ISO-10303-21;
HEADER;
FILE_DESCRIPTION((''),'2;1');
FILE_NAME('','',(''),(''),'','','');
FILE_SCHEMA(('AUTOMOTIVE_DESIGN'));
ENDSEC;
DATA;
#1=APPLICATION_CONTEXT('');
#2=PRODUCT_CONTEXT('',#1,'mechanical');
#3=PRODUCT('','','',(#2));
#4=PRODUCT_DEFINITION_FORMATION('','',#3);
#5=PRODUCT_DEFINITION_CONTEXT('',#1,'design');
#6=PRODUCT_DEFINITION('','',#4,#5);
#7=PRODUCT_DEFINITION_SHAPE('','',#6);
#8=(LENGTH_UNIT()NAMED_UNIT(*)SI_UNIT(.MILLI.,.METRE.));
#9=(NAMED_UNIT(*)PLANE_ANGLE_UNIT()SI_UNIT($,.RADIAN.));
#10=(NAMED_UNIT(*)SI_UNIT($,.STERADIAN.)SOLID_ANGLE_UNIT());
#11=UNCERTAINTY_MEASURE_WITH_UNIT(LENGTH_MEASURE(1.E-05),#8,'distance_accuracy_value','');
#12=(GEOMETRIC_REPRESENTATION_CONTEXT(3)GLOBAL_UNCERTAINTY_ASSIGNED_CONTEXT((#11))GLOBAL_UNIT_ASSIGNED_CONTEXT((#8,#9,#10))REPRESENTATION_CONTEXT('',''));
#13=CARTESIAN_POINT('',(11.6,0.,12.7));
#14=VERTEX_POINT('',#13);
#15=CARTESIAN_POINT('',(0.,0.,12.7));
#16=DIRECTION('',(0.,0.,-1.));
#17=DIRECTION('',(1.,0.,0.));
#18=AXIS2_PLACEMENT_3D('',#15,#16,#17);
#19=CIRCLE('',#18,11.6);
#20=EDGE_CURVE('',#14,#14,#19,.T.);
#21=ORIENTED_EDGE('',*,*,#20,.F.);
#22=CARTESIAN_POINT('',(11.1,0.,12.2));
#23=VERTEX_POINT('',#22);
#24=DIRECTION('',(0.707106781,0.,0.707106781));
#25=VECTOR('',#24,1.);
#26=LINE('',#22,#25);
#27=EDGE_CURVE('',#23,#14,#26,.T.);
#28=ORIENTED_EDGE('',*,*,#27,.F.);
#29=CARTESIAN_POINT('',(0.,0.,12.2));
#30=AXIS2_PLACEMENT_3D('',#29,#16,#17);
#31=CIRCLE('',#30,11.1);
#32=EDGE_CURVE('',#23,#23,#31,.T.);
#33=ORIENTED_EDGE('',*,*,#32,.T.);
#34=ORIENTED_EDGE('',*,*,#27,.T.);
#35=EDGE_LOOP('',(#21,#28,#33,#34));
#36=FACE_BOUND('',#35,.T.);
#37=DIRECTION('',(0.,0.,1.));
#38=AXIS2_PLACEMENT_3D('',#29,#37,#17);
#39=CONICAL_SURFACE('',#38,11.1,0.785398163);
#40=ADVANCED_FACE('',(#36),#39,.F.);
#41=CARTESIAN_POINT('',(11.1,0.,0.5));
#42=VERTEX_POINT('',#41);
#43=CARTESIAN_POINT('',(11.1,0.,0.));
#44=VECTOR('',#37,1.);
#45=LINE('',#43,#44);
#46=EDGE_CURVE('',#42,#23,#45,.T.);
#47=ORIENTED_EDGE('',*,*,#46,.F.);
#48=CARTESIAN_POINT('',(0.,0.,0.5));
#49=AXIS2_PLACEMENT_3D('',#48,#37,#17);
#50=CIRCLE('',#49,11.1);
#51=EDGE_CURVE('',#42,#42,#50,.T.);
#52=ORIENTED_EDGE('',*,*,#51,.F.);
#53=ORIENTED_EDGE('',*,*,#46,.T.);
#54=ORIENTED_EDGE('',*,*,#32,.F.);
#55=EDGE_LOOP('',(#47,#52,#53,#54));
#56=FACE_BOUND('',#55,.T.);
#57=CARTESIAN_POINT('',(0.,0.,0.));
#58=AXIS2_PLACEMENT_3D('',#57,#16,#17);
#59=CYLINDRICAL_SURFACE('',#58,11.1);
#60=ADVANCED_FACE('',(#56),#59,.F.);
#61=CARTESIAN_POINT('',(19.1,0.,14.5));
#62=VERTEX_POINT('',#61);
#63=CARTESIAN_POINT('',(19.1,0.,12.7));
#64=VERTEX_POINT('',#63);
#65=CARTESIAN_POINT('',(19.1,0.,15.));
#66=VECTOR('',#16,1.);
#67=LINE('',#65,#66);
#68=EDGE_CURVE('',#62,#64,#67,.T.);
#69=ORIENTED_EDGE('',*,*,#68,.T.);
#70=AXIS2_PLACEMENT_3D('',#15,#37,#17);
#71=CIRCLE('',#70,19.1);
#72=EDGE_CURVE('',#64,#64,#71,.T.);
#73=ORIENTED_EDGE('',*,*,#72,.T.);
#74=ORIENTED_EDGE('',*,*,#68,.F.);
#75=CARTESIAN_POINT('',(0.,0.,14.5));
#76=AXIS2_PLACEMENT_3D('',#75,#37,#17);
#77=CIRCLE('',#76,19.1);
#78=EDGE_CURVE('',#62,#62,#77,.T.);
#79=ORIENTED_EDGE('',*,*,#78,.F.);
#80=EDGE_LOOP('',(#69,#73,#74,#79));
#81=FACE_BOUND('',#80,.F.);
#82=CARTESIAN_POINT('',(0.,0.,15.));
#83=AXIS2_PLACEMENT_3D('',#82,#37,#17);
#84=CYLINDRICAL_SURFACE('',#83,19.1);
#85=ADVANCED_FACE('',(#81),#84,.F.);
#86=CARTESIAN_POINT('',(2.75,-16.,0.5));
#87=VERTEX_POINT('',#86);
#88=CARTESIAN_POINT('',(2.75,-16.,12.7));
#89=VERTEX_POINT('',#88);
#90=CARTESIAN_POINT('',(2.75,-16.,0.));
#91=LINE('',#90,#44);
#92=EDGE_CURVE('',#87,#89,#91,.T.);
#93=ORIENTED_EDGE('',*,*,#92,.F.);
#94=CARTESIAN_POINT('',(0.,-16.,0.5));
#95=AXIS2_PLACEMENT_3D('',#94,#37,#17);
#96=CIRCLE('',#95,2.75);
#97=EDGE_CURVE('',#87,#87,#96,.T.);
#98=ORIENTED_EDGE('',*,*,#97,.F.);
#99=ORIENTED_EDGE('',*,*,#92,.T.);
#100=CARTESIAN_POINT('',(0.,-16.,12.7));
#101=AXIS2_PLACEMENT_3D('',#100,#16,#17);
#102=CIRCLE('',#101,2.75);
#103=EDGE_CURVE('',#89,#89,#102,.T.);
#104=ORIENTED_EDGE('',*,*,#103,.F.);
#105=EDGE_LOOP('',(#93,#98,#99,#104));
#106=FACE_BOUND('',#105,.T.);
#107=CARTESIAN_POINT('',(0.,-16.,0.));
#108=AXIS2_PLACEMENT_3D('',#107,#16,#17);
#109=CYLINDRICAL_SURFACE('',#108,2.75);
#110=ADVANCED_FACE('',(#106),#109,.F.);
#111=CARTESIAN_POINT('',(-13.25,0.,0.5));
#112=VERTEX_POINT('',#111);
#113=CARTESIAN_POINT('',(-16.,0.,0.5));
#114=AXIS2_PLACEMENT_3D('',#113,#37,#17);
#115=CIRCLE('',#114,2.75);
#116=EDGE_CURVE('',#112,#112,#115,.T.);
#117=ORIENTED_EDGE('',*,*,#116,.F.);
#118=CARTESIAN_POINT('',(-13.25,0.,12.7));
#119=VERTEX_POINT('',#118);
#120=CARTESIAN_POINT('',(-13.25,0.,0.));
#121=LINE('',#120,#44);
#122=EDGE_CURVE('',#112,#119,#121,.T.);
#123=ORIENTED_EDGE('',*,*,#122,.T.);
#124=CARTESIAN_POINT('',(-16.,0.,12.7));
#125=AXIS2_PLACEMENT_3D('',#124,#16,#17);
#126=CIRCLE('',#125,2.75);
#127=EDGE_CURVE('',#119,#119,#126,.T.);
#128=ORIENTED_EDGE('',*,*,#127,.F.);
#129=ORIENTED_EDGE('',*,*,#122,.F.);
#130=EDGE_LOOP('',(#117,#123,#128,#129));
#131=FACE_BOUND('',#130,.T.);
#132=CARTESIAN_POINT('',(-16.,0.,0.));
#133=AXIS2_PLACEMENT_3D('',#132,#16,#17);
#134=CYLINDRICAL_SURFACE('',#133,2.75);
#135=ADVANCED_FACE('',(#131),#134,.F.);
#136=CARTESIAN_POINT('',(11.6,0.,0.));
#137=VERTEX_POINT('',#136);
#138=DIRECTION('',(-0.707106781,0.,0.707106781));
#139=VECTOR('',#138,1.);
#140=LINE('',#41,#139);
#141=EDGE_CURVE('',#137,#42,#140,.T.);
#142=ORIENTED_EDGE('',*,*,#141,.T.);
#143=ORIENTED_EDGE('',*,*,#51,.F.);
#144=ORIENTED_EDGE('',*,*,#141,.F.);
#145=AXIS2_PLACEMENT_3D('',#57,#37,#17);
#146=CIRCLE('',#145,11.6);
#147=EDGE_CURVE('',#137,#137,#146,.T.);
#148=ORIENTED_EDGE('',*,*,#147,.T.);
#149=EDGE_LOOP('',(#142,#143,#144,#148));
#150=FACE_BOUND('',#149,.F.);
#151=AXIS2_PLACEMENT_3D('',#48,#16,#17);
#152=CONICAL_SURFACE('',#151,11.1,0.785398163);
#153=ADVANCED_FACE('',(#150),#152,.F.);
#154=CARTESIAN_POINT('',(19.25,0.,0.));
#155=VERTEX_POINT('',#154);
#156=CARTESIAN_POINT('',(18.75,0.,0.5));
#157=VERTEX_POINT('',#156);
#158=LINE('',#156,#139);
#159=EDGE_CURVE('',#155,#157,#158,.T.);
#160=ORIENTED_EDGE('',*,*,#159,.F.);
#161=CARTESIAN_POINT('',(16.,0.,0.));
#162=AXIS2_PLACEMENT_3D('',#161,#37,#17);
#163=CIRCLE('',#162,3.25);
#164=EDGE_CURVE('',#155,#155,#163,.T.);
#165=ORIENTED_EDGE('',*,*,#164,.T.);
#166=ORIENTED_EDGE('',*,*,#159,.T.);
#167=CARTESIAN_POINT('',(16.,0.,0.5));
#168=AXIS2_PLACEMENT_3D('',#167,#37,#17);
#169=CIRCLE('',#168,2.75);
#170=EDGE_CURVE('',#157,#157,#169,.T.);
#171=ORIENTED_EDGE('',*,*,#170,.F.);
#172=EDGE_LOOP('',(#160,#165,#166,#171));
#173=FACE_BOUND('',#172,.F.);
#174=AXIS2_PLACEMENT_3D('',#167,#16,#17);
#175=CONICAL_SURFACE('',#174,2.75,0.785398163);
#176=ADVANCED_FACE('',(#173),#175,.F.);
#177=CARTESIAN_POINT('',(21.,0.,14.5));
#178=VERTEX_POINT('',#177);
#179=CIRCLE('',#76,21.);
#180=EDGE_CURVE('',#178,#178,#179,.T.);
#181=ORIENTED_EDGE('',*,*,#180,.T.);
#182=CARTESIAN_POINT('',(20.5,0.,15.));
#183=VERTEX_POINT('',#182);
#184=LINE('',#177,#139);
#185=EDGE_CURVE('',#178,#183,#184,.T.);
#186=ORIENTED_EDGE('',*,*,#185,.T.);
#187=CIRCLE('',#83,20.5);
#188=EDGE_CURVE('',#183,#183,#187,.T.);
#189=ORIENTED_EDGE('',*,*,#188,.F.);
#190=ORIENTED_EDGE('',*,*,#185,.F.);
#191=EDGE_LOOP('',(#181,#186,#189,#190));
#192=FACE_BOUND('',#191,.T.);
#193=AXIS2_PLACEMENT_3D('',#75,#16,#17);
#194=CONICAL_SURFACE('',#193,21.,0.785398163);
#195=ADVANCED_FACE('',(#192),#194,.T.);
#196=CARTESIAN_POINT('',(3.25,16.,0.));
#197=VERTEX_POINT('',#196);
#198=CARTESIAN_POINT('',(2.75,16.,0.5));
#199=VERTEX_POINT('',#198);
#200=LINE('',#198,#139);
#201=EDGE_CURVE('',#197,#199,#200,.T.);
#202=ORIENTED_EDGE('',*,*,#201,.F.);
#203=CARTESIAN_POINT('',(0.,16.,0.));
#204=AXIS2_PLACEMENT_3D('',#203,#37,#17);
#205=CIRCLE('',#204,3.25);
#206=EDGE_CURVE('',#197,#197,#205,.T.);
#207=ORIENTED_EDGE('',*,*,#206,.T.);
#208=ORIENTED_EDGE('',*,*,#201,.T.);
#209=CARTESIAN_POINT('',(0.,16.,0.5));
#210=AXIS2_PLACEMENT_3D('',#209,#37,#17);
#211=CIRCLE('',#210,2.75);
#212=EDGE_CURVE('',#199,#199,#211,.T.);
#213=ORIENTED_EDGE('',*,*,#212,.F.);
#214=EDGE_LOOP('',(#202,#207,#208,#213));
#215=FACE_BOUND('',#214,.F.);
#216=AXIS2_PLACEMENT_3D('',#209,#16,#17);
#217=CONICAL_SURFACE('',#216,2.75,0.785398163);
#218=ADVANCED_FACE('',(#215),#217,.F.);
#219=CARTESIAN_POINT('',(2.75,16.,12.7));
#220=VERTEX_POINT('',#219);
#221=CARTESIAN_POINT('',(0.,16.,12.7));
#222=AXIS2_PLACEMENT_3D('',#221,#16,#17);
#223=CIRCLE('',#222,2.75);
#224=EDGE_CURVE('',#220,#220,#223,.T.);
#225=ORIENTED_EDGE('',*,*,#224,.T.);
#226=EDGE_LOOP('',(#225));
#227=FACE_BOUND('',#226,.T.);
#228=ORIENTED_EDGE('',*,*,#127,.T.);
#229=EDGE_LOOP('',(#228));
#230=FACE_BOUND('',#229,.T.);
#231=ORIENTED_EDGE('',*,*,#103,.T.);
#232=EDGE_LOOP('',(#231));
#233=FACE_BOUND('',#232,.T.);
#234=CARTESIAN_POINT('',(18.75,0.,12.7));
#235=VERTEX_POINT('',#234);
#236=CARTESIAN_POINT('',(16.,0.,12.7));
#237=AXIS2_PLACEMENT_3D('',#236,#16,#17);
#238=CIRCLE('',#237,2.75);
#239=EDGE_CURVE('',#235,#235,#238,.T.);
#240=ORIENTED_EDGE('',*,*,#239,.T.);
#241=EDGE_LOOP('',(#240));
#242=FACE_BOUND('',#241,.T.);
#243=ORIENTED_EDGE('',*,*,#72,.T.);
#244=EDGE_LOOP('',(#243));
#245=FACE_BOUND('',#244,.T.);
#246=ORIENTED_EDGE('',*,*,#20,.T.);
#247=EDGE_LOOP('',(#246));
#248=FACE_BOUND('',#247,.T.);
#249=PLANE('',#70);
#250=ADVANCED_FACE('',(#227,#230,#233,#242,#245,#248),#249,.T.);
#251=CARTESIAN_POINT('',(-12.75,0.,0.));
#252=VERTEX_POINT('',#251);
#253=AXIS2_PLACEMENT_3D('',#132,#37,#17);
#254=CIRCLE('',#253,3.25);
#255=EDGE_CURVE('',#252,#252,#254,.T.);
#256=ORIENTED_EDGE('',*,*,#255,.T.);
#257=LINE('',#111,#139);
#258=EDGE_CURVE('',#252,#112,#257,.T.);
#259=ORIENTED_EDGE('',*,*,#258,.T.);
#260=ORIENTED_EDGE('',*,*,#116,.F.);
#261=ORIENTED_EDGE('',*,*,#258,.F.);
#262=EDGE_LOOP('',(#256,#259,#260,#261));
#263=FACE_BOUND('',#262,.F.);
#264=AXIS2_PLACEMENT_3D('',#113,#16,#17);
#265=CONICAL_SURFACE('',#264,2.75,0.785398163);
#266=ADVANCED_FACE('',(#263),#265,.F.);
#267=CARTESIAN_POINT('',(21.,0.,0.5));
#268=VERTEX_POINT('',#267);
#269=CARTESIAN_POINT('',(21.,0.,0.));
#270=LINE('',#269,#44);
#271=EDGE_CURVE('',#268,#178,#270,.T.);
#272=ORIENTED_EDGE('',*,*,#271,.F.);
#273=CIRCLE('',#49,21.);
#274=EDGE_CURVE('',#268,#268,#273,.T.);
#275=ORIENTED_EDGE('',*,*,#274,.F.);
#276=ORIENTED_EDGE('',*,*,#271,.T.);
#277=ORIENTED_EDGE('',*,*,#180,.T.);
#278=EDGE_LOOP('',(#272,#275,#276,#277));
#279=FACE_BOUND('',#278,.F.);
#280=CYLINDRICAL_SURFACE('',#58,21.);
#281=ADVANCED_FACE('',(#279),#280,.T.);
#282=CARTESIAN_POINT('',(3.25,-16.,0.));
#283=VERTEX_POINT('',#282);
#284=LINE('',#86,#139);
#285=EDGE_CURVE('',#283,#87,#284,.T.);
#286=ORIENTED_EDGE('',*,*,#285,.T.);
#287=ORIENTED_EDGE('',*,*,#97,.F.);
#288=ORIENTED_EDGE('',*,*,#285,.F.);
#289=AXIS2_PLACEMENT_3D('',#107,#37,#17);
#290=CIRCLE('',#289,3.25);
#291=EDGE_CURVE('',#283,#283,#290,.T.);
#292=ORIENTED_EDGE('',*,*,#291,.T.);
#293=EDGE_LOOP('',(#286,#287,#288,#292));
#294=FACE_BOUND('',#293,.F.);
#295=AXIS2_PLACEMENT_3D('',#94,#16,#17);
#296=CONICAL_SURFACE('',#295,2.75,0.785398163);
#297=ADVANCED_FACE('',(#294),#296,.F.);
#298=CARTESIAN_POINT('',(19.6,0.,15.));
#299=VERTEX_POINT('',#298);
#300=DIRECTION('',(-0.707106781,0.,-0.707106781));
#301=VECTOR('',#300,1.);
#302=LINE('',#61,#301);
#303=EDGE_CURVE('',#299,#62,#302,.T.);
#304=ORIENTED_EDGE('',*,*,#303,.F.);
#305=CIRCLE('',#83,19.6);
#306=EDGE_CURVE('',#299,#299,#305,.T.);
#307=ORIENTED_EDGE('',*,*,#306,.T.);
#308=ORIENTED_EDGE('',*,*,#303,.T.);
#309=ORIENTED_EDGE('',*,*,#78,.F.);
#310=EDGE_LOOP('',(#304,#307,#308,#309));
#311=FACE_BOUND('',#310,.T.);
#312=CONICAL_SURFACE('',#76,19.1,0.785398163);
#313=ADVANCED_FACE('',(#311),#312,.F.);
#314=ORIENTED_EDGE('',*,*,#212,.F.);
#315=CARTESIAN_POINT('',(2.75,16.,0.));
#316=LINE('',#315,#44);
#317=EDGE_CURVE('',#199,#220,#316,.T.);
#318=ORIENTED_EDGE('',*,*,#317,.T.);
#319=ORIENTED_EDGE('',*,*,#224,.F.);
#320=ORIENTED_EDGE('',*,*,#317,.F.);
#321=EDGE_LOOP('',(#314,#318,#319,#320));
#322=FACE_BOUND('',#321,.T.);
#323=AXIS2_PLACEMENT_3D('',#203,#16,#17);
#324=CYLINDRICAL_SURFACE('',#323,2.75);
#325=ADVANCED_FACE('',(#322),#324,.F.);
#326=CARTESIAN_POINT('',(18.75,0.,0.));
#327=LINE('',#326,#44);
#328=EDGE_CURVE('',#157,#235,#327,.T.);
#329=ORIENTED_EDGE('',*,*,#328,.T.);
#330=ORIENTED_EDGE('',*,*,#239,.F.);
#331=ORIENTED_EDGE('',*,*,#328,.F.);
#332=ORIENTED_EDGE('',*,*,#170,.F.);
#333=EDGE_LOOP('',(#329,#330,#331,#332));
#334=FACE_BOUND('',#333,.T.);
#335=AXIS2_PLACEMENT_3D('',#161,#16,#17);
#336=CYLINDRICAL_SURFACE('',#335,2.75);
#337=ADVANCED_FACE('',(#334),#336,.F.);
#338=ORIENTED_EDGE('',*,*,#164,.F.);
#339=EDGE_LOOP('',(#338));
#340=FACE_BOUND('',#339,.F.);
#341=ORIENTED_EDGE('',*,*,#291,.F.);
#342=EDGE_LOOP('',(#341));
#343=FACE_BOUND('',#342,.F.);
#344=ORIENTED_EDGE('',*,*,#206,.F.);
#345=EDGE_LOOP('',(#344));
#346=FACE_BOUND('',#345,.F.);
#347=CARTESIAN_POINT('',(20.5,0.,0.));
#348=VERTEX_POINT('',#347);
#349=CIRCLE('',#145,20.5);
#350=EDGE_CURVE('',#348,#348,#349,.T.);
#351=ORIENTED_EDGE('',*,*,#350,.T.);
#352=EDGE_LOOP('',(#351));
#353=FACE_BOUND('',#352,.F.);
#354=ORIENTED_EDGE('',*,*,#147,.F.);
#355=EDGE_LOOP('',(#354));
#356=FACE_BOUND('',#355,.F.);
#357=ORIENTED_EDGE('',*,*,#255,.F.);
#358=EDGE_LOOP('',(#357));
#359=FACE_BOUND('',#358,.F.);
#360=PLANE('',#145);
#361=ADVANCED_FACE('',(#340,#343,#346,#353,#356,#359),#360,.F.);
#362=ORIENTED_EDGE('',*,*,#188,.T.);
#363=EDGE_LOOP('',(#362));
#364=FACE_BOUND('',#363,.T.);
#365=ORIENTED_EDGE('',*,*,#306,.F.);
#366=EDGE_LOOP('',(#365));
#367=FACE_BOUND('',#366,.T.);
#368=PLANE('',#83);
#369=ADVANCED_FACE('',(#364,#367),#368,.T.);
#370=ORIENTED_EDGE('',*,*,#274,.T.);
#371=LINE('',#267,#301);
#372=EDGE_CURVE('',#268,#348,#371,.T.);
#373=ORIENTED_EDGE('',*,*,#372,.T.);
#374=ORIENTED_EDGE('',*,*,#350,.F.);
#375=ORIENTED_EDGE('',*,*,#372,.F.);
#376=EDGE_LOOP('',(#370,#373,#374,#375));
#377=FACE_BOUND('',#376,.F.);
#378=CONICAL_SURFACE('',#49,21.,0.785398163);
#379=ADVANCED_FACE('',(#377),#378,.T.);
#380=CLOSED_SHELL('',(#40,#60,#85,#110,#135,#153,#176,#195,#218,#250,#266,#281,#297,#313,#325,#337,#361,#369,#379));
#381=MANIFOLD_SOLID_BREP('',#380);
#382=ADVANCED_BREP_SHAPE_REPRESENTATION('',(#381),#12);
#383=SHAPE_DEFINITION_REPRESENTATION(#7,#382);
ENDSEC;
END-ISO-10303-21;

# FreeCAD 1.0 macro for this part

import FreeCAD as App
import Part
import Sketcher
from FreeCAD import Vector


def edges_at(feature, points):
    """Names of the edges that pass closest to the given points."""
    edges = feature.Shape.Edges
    near = lambda p: min(range(len(edges)), key=lambda i: edges[i].distToShape(Part.Vertex(*p))[0])
    return sorted({f"Edge{near(p) + 1}" for p in points})

doc = App.newDocument("Part")
body = doc.addObject("PartDesign::Body", "Body")

sketch1 = body.newObject("Sketcher::SketchObject", "Sketch")
sketch1.AttachmentSupport = (doc.getObject("XY_Plane"), [""])
sketch1.MapMode = "FlatFace"
sketch1.addGeometry(Part.Circle(Vector(0, 0, 0), Vector(0, 0, 1), 21), False)
sketch1.addGeometry(Part.Circle(Vector(0, -16, 0), Vector(0, 0, 1), 2.8), False)
sketch1.addGeometry(Part.Circle(Vector(-16, 0, 0), Vector(0, 0, 1), 2.8), False)
sketch1.addGeometry(Part.Circle(Vector(0, 0, 0), Vector(0, 0, 1), 11.1), False)
sketch1.addGeometry(Part.Circle(Vector(16, 0, 0), Vector(0, 0, 1), 2.8), False)
sketch1.addGeometry(Part.Circle(Vector(0, 16, 0), Vector(0, 0, 1), 2.8), False)
sketch1.addConstraint(Sketcher.Constraint("Coincident", 0, 3, -1, 1))
sketch1.addConstraint(Sketcher.Constraint("Coincident", 3, 3, -1, 1))
sketch1.addConstraint(Sketcher.Constraint("Equal", 1, 2))
sketch1.addConstraint(Sketcher.Constraint("Equal", 2, 4))
sketch1.addConstraint(Sketcher.Constraint("Equal", 4, 5))
sketch1.addConstraint(Sketcher.Constraint("Symmetric", 2, 3, 4, 3, -1, 1))
sketch1.addConstraint(Sketcher.Constraint("Symmetric", 1, 3, 5, 3, -1, 1))
sketch1.addConstraint(Sketcher.Constraint("PointOnObject", 1, 3, -2))
sketch1.addConstraint(Sketcher.Constraint("PointOnObject", 2, 3, -1))
sketch1.addConstraint(Sketcher.Constraint("Diameter", 0, 42.0))
sketch1.addConstraint(Sketcher.Constraint("Diameter", 1, 5.5))
sketch1.addConstraint(Sketcher.Constraint("Diameter", 3, 22.2))
sketch1.addConstraint(Sketcher.Constraint("DistanceY", 1, 3, -1, 1, 16.0))
sketch1.addConstraint(Sketcher.Constraint("DistanceX", 2, 3, -1, 1, 16.0))
pad1 = body.newObject("PartDesign::Pad", "Pad")
pad1.Profile = sketch1
pad1.Length = 15

sketch2 = body.newObject("Sketcher::SketchObject", "Sketch001")
sketch2.AttachmentSupport = (doc.getObject("XY_Plane"), [""])
sketch2.MapMode = "FlatFace"
sketch2.AttachmentOffset = App.Placement(Vector(0, 0, 15), App.Rotation())
sketch2.addGeometry(Part.Circle(Vector(0, 0, 0), Vector(0, 0, 1), 19), False)
sketch2.addConstraint(Sketcher.Constraint("Coincident", 0, 3, -1, 1))
sketch2.addConstraint(Sketcher.Constraint("Diameter", 0, 38.2))
pocket1 = body.newObject("PartDesign::Pocket", "Pocket")
pocket1.Profile = sketch2
pocket1.Length = 2.3
doc.recompute()

chamfer = body.newObject("PartDesign::Chamfer", "Chamfer")
chamfer.Base = (pocket1, edges_at(pocket1, [
    (-21, 0, 0),
    (-21, 0, 15),
    (-11.1, 0, 0),
    (-2.75, -16, 0),
    (-2.75, 16, 0),
    (13.25, 0, 0),
    (-18.75, 0, 0),
    (-11.1, 0, 12.7),
    (-19.1, 0, 15),
]))
chamfer.Size = 0.5

doc.recompute()
